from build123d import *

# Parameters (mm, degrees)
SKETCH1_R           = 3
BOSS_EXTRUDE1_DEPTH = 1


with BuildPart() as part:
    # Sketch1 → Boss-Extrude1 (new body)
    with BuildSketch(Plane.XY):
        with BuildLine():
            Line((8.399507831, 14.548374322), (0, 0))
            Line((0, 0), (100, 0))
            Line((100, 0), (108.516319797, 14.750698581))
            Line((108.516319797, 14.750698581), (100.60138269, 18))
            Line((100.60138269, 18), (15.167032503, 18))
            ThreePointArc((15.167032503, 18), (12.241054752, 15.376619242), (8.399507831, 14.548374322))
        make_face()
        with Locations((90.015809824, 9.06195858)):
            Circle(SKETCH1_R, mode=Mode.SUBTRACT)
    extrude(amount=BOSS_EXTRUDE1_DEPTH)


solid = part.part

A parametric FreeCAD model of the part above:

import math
import FreeCAD as App
import Part
import Sketcher
Q = App.Units.Quantity

doc = App.newDocument("Part")
params = doc.addObject("Spreadsheet::Sheet", "Params")
for row, (alias, value) in enumerate([
    ("sketch1_diameter", "6 mm"),
    ("sketch1_width", "100 mm"),
    ("pad1_length", "1 mm"),
], start=1):
    params.set(f"A{row}", alias)
    params.set(f"B{row}", "=" + value)
    params.setAlias(f"B{row}", alias)

body = doc.addObject("PartDesign::Body", "Body")

# Sketch on XY plane
sketch1 = body.newObject("Sketcher::SketchObject", "Sketch")
sketch1.AttachmentSupport = (doc.getObject("XY_Plane"), [""])
sketch1.MapMode = "FlatFace"
sketch1.addGeometry(Part.LineSegment(App.Vector(8.4, 14.5, 0), App.Vector(0, 0, 0)), False)
sketch1.addGeometry(Part.LineSegment(App.Vector(0, 0, 0), App.Vector(100, 0, 0)), False)
sketch1.addGeometry(Part.LineSegment(App.Vector(100, 0, 0), App.Vector(108.5, 14.8, 0)), False)
sketch1.addGeometry(Part.LineSegment(App.Vector(108.5, 14.8, 0), App.Vector(100.6, 18, 0)), False)
sketch1.addGeometry(Part.LineSegment(App.Vector(100.6, 18, 0), App.Vector(15.2, 18, 0)), False)
sketch1.addGeometry(Part.ArcOfCircle(Part.Circle(App.Vector(8.8, 22.2, 0), App.Vector(0, 0, 1), 7.7), math.radians(-93), math.radians(-33)), False)
sketch1.addGeometry(Part.Circle(App.Vector(90, 9.1, 0), App.Vector(0, 0, 1), 3), False)
sketch1.addConstraint(Sketcher.Constraint("Coincident", 0, 2, 1, 1))
sketch1.addConstraint(Sketcher.Constraint("Coincident", 1, 2, 2, 1))
sketch1.addConstraint(Sketcher.Constraint("Coincident", 2, 2, 3, 1))
sketch1.addConstraint(Sketcher.Constraint("Coincident", 3, 2, 4, 1))
sketch1.addConstraint(Sketcher.Constraint("Coincident", 4, 2, 5, 2))
sketch1.addConstraint(Sketcher.Constraint("Coincident", 5, 1, 0, 1))
sketch1.addConstraint(Sketcher.Constraint("Horizontal", 1))
sketch1.addConstraint(Sketcher.Constraint("Horizontal", 4))
sketch1.addConstraint(Sketcher.Constraint("Coincident", 0, 2, -1, 1))
sketch1.addConstraint(Sketcher.Constraint("Parallel", 0, 2))
sketch1.addConstraint(Sketcher.Constraint("Diameter", 6, Q("6 mm")))
sketch1.addConstraint(Sketcher.Constraint("DistanceX", 1, 1, 1, 2, Q("100 mm")))
sketch1.addConstraint(Sketcher.Constraint("Angle", 0, Q("-120 deg")))
sketch1.addConstraint(Sketcher.Constraint("DistanceY", -1, 1, 3, 2, Q("18 mm")))
sketch1.addConstraint(Sketcher.Constraint("Radius", 5, Q("7.663731 mm")))
sketch1.addConstraint(Sketcher.Constraint("DistanceX", 4, 2, 4, 1, Q("85.43435 mm")))
sketch1.addConstraint(Sketcher.Constraint("DistanceY", -1, 1, 2, 2, Q("14.750699 mm")))
sketch1.addConstraint(Sketcher.Constraint("DistanceX", 5, 1, 6, 3, Q("81.616302 mm")))
sketch1.addConstraint(Sketcher.Constraint("DistanceX", -1, 1, 5, 3, Q("8.759071 mm")))
sketch1.addConstraint(Sketcher.Constraint("DistanceX", -1, 1, 6, 3, Q("90.01581 mm")))
sketch1.addConstraint(Sketcher.Constraint("DistanceY", -1, 1, 6, 3, Q("9.061959 mm")))
sketch1.setExpression("Constraints[10]", "Params.sketch1_diameter")
sketch1.setExpression("Constraints[11]", "Params.sketch1_width")
pad1 = body.newObject("PartDesign::Pad", "Pad")
pad1.Profile = sketch1
pad1.setExpression("Length", "Params.pad1_length")

doc.recompute()
